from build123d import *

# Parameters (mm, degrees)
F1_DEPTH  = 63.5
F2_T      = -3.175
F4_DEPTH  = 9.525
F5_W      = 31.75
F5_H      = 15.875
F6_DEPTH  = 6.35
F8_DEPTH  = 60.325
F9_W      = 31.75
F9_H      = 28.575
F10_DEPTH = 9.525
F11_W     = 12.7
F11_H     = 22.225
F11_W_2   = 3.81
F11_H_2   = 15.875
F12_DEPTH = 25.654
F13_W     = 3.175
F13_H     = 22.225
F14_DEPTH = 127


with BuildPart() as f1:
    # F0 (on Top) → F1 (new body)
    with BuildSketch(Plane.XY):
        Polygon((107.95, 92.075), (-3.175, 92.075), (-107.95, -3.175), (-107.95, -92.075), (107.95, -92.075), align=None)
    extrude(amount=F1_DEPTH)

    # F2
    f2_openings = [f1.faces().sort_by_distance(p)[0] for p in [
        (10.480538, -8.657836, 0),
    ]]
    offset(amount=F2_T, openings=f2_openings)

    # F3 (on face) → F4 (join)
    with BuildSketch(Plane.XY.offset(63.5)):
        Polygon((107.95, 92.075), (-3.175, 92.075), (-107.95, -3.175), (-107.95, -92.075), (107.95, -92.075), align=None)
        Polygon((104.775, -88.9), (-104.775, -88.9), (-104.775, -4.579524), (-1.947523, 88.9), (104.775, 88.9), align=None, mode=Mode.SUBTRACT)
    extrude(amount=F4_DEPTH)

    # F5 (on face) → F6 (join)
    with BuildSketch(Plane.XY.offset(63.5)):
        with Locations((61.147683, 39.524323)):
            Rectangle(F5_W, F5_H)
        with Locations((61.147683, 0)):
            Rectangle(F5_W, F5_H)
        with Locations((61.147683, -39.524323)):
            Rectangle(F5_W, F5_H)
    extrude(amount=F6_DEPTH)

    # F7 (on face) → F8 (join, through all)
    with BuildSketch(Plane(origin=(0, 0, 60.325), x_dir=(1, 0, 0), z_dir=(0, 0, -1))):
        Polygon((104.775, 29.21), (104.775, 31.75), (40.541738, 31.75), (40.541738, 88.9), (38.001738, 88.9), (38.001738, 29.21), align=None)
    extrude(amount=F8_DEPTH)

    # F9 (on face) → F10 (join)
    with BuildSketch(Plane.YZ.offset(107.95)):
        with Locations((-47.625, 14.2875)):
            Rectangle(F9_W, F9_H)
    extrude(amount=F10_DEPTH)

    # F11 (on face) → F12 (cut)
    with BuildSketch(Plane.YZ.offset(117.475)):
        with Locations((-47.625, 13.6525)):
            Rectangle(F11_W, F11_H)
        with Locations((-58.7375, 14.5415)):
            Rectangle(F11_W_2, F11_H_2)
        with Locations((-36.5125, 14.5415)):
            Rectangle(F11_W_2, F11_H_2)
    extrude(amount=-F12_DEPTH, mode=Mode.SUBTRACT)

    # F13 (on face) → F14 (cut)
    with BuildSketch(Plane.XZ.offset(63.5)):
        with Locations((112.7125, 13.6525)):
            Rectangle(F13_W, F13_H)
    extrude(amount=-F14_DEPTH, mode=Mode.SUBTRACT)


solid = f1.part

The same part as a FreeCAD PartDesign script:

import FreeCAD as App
import Part
import Sketcher
Q = App.Units.Quantity


def faces_at(feature, points):
    """Names of the faces that lie closest to the given points."""
    faces = feature.Shape.Faces
    near = lambda p: min(range(len(faces)), key=lambda i: faces[i].distToShape(Part.Vertex(*p))[0])
    return sorted({f"Face{near(p) + 1}" for p in points})


def add_polygon(sketch, points):
    """Adds a closed chain of lines whose ends are joined by coincident constraints."""
    first, n = sketch.GeometryCount, len(points)
    for a, b in zip(points, points[1:] + points[:1]):
        sketch.addGeometry(Part.LineSegment(App.Vector(*a, 0), App.Vector(*b, 0)), False)
    for i in range(n):
        sketch.addConstraint(Sketcher.Constraint("Coincident", first + i, 2, first + (i + 1) % n, 1))

doc = App.newDocument("Part")
body = doc.addObject("PartDesign::Body", "Body")

# Sketch on XY plane
sketch1 = doc.addObject("Sketcher::SketchObject", "Sketch")
body.addObject(sketch1)
sketch1.AttachmentSupport = (doc.XY_Plane, [""])
sketch1.MapMode = "FlatFace"
add_polygon(sketch1, [(108, 92), (-3, 92), (-108, -3), (-108, -92), (108, -92)])  # lines 0-4
sketch1.addConstraint([
    Sketcher.Constraint("Horizontal", 0),
    Sketcher.Constraint("Vertical", 2),
    Sketcher.Constraint("Horizontal", 3),
    Sketcher.Constraint("Vertical", 4),
    Sketcher.Constraint("Symmetric", 2, 2, 4, 2, -1, 1),
    Sketcher.Constraint("DistanceX", 3, 1, 3, 2, Q("8.5 in")),
    Sketcher.Constraint("DistanceY", 2, 2, 2, 1, Q("3.5 in")),
    Sketcher.Constraint("DistanceY", 4, 1, 4, 2, Q("7.25 in")),
    Sketcher.Constraint("DistanceX", 0, 2, 0, 1, Q("4.375 in")),
])
pad1 = doc.addObject("PartDesign::Pad", "Pad")
body.addObject(pad1)
pad1.Profile = sketch1
pad1.Length = Q("2.5 in")
doc.recompute()

thickness = doc.addObject("PartDesign::Thickness", "Thickness")
body.addObject(thickness)
thickness.Base = (pad1, faces_at(pad1, [(0, 0, 0)]))
thickness.Value = Q("0.125 in")
thickness.Reversed = True
thickness.Join = "Arc"

# Sketch on XY plane
sketch2 = doc.addObject("Sketcher::SketchObject", "Sketch001")
body.addObject(sketch2)
sketch2.AttachmentSupport = (doc.XY_Plane, [""])
sketch2.MapMode = "FlatFace"
sketch2.AttachmentOffset = App.Placement(App.Vector(0, 0, 2.5 * 25.4), App.Rotation())
add_polygon(sketch2, [(108, 92), (-3, 92), (-108, -3), (-108, -92), (108, -92)])  # lines 0-4
add_polygon(sketch2, [(105, 89), (105, -89), (-105, -89), (-105, -5), (-2, 89)])  # lines 5-9
sketch2.addConstraint([
    Sketcher.Constraint("Horizontal", 0),
    Sketcher.Constraint("Vertical", 2),
    Sketcher.Constraint("Horizontal", 3),
    Sketcher.Constraint("Vertical", 4),
    Sketcher.Constraint("Vertical", 5),
    Sketcher.Constraint("Horizontal", 6),
    Sketcher.Constraint("Vertical", 7),
    Sketcher.Constraint("Horizontal", 9),
    Sketcher.Constraint("Symmetric", 2, 2, 4, 2, -1, 1),
    Sketcher.Constraint("Symmetric", 6, 2, 9, 2, -1, 1),
    Sketcher.Constraint("Parallel", 1, 8),
    Sketcher.Constraint("DistanceY", 5, 2, 5, 1, Q("7 in")),
    Sketcher.Constraint("DistanceX", 3, 1, 3, 2, Q("8.5 in")),
    Sketcher.Constraint("DistanceY", 2, 2, 2, 1, Q("3.5 in")),
    Sketcher.Constraint("DistanceX", 6, 2, 0, 2, Q("4 in")),
    Sketcher.Constraint("DistanceX", 6, 2, 6, 1, Q("8.25 in")),
    Sketcher.Constraint("DistanceY", 4, 1, 4, 2, Q("7.25 in")),
    Sketcher.Constraint("DistanceX", 9, 1, 9, 2, 106.722523),
])
pad2 = doc.addObject("PartDesign::Pad", "Pad001")
body.addObject(pad2)
pad2.Profile = sketch2
pad2.Length = Q("0.375 in")

# Sketch on XY plane
sketch3 = doc.addObject("Sketcher::SketchObject", "Sketch002")
body.addObject(sketch3)
sketch3.AttachmentSupport = (doc.XY_Plane, [""])
sketch3.MapMode = "FlatFace"
sketch3.AttachmentOffset = App.Placement(App.Vector(0, 0, 2.5 * 25.4), App.Rotation())
add_polygon(sketch3, [(45, 47), (45, 32), (77, 32), (77, 47)])  # lines 0-3
add_polygon(sketch3, [(45, 8), (45, -8), (77, -8), (77, 8)])  # lines 4-7
add_polygon(sketch3, [(45, -32), (45, -47), (77, -47), (77, -32)])  # lines 8-11
sketch3.addConstraint([
    Sketcher.Constraint("Vertical", 0),
    Sketcher.Constraint("Horizontal", 1),
    Sketcher.Constraint("Vertical", 2),
    Sketcher.Constraint("Horizontal", 3),
    Sketcher.Constraint("Vertical", 4),
    Sketcher.Constraint("Horizontal", 5),
    Sketcher.Constraint("Vertical", 6),
    Sketcher.Constraint("Horizontal", 7),
    Sketcher.Constraint("Vertical", 8),
    Sketcher.Constraint("Horizontal", 9),
    Sketcher.Constraint("Vertical", 10),
    Sketcher.Constraint("Horizontal", 11),
    Sketcher.Constraint("Symmetric", 3, 2, 8, 2, -1),
    Sketcher.Constraint("Symmetric", 1, 2, 10, 2, -1),
    Sketcher.Constraint("Vertical", 3, 2, 4, 2),
    Sketcher.Constraint("Vertical", 2, 2, 5, 2),
    Sketcher.Constraint("Equal", 2, 4),
    Sketcher.Constraint("DistanceX", 1, 1, 1, 2, Q("1.25 in")),
    Sketcher.Constraint("DistanceY", 0, 2, 0, 1, Q("0.625 in")),
    Sketcher.Constraint("DistanceY", 4, 2, -1, 1, Q("0.3125 in")),
    Sketcher.Constraint("DistanceX", -1, 1, 0, 2, 45.272683),
    Sketcher.Constraint("DistanceY", -1, 1, 0, 2, 31.586823),
])
pad3 = doc.addObject("PartDesign::Pad", "Pad002")
body.addObject(pad3)
pad3.Profile = sketch3
pad3.Length = Q("0.25 in")

# Sketch on XY plane
sketch4 = doc.addObject("Sketcher::SketchObject", "Sketch003")
body.addObject(sketch4)
sketch4.AttachmentSupport = (doc.XY_Plane, [""])
sketch4.MapMode = "FlatFace"
sketch4.AttachmentOffset = App.Placement(App.Vector(0, 0, 2.375 * 25.4), App.Rotation())
add_polygon(sketch4, [(104.8, -29.2), (104.8, -31.8), (40.5, -31.8), (40.5, -88.9), (38, -88.9), (38, -29.2)])  # lines 0-5
sketch4.addConstraint([
    Sketcher.Constraint("Vertical", 0),
    Sketcher.Constraint("Horizontal", 1),
    Sketcher.Constraint("Vertical", 2),
    Sketcher.Constraint("Horizontal", 3),
    Sketcher.Constraint("Vertical", 4),
    Sketcher.Constraint("Horizontal", 5),
    Sketcher.Constraint("Equal", 3, 0),
    Sketcher.Constraint("DistanceX", 3, 2, 3, 1, Q("0.1 in")),
    Sketcher.Constraint("DistanceY", 2, 2, 2, 1, Q("2.25 in")),
    Sketcher.Constraint("DistanceY", 2, 2, -1, 1, Q("3.5 in")),
    Sketcher.Constraint("DistanceX", -1, 1, 0, 2, Q("4.125 in")),
    Sketcher.Constraint("DistanceX", 1, 2, 1, 1, 64.233262),
])
pad4 = doc.addObject("PartDesign::Pad", "Pad003")
body.addObject(pad4)
pad4.Profile = sketch4
pad4.Length = Q("2.375 in")
pad4.Reversed = True

# Sketch on YZ plane
sketch5 = doc.addObject("Sketcher::SketchObject", "Sketch004")
body.addObject(sketch5)
sketch5.AttachmentSupport = (doc.YZ_Plane, [""])
sketch5.MapMode = "FlatFace"
sketch5.AttachmentOffset = App.Placement(App.Vector(0, 0, 4.25 * 25.4), App.Rotation())
add_polygon(sketch5, [(-64, 29), (-64, 0), (-32, 0), (-32, 29)])  # lines 0-3
sketch5.addConstraint([
    Sketcher.Constraint("Vertical", 0),
    Sketcher.Constraint("Horizontal", 1),
    Sketcher.Constraint("Vertical", 2),
    Sketcher.Constraint("Horizontal", 3),
    Sketcher.Constraint("PointOnObject", 0, 2, -1),
    Sketcher.Constraint("DistanceX", 1, 1, 1, 2, Q("1.25 in")),
    Sketcher.Constraint("DistanceX", 0, 2, -1, 1, Q("2.5 in")),
    Sketcher.Constraint("DistanceY", 0, 2, 0, 1, Q("1.125 in")),
])
pad5 = doc.addObject("PartDesign::Pad", "Pad004")
body.addObject(pad5)
pad5.Profile = sketch5
pad5.Length = Q("0.375 in")

# Sketch on YZ plane
sketch6 = doc.addObject("Sketcher::SketchObject", "Sketch005")
body.addObject(sketch6)
sketch6.AttachmentSupport = (doc.YZ_Plane, [""])
sketch6.MapMode = "FlatFace"
sketch6.AttachmentOffset = App.Placement(App.Vector(0, 0, 4.625 * 25.4), App.Rotation())
add_polygon(sketch6, [(-54, 24.8), (-54, 2.5), (-41.3, 2.5), (-41.3, 24.8)])  # lines 0-3
add_polygon(sketch6, [(-60.6, 22.5), (-60.6, 6.6), (-56.8, 6.6), (-56.8, 22.5)])  # lines 4-7
add_polygon(sketch6, [(-38.4, 22.5), (-38.4, 6.6), (-34.6, 6.6), (-34.6, 22.5)])  # lines 8-11
sketch6.addConstraint([
    Sketcher.Constraint("Vertical", 0),
    Sketcher.Constraint("Horizontal", 1),
    Sketcher.Constraint("Vertical", 2),
    Sketcher.Constraint("Horizontal", 3),
    Sketcher.Constraint("Vertical", 4),
    Sketcher.Constraint("Horizontal", 5),
    Sketcher.Constraint("Vertical", 6),
    Sketcher.Constraint("Horizontal", 7),
    Sketcher.Constraint("Vertical", 8),
    Sketcher.Constraint("Horizontal", 9),
    Sketcher.Constraint("Vertical", 10),
    Sketcher.Constraint("Horizontal", 11),
    Sketcher.Constraint("Horizontal", 5, 2, 8, 2),
    Sketcher.Constraint("Horizontal", 7, 2, 10, 2),
    Sketcher.Constraint("Equal", 7, 9),
    Sketcher.Constraint("DistanceX", 1, 1, 1, 2, Q("0.5 in")),
    Sketcher.Constraint("DistanceX", 5, 1, 5, 2, Q("0.15 in")),
    Sketcher.Constraint("DistanceY", -1, 1, 0, 2, Q("0.1 in")),
    Sketcher.Constraint("DistanceY", 0, 2, 0, 1, Q("0.875 in")),
    Sketcher.Constraint("DistanceY", 4, 2, 4, 1, Q("0.625 in")),
    Sketcher.Constraint("DistanceY", -1, 1, 4, 2, Q("0.26 in")),
    Sketcher.Constraint("DistanceX", 0, 2, -1, 1, Q("2.125 in")),
    Sketcher.Constraint("DistanceX", 5, 2, 8, 2, Q("0.725 in")),
    Sketcher.Constraint("DistanceX", 4, 2, -1, 1, Q("2.3875 in")),
])
pocket1 = doc.addObject("PartDesign::Pocket", "Pocket")
body.addObject(pocket1)
pocket1.Profile = sketch6
pocket1.Length = Q("1.01 in")

# Sketch on XZ plane
sketch7 = doc.addObject("Sketcher::SketchObject", "Sketch006")
body.addObject(sketch7)
sketch7.AttachmentSupport = (doc.XZ_Plane, [""])
sketch7.MapMode = "FlatFace"
sketch7.AttachmentOffset = App.Placement(App.Vector(0, 0, 2.5 * 25.4), App.Rotation())
add_polygon(sketch7, [(111.1, 24.8), (111.1, 2.5), (114.3, 2.5), (114.3, 24.8)])  # lines 0-3
sketch7.addConstraint([
    Sketcher.Constraint("Vertical", 0),
    Sketcher.Constraint("Horizontal", 1),
    Sketcher.Constraint("Vertical", 2),
    Sketcher.Constraint("Horizontal", 3),
    Sketcher.Constraint("DistanceY", -1, 1, 0, 2, Q("0.1 in")),
    Sketcher.Constraint("DistanceX", -1, 1, 1, 2, Q("4.5 in")),
    Sketcher.Constraint("DistanceX", 1, 1, 1, 2, Q("0.125 in")),
    Sketcher.Constraint("DistanceY", 0, 2, 0, 1, Q("0.875 in")),
])
pocket2 = doc.addObject("PartDesign::Pocket", "Pocket001")
body.addObject(pocket2)
pocket2.Profile = sketch7
pocket2.Length = Q("5 in")

doc.recompute()
